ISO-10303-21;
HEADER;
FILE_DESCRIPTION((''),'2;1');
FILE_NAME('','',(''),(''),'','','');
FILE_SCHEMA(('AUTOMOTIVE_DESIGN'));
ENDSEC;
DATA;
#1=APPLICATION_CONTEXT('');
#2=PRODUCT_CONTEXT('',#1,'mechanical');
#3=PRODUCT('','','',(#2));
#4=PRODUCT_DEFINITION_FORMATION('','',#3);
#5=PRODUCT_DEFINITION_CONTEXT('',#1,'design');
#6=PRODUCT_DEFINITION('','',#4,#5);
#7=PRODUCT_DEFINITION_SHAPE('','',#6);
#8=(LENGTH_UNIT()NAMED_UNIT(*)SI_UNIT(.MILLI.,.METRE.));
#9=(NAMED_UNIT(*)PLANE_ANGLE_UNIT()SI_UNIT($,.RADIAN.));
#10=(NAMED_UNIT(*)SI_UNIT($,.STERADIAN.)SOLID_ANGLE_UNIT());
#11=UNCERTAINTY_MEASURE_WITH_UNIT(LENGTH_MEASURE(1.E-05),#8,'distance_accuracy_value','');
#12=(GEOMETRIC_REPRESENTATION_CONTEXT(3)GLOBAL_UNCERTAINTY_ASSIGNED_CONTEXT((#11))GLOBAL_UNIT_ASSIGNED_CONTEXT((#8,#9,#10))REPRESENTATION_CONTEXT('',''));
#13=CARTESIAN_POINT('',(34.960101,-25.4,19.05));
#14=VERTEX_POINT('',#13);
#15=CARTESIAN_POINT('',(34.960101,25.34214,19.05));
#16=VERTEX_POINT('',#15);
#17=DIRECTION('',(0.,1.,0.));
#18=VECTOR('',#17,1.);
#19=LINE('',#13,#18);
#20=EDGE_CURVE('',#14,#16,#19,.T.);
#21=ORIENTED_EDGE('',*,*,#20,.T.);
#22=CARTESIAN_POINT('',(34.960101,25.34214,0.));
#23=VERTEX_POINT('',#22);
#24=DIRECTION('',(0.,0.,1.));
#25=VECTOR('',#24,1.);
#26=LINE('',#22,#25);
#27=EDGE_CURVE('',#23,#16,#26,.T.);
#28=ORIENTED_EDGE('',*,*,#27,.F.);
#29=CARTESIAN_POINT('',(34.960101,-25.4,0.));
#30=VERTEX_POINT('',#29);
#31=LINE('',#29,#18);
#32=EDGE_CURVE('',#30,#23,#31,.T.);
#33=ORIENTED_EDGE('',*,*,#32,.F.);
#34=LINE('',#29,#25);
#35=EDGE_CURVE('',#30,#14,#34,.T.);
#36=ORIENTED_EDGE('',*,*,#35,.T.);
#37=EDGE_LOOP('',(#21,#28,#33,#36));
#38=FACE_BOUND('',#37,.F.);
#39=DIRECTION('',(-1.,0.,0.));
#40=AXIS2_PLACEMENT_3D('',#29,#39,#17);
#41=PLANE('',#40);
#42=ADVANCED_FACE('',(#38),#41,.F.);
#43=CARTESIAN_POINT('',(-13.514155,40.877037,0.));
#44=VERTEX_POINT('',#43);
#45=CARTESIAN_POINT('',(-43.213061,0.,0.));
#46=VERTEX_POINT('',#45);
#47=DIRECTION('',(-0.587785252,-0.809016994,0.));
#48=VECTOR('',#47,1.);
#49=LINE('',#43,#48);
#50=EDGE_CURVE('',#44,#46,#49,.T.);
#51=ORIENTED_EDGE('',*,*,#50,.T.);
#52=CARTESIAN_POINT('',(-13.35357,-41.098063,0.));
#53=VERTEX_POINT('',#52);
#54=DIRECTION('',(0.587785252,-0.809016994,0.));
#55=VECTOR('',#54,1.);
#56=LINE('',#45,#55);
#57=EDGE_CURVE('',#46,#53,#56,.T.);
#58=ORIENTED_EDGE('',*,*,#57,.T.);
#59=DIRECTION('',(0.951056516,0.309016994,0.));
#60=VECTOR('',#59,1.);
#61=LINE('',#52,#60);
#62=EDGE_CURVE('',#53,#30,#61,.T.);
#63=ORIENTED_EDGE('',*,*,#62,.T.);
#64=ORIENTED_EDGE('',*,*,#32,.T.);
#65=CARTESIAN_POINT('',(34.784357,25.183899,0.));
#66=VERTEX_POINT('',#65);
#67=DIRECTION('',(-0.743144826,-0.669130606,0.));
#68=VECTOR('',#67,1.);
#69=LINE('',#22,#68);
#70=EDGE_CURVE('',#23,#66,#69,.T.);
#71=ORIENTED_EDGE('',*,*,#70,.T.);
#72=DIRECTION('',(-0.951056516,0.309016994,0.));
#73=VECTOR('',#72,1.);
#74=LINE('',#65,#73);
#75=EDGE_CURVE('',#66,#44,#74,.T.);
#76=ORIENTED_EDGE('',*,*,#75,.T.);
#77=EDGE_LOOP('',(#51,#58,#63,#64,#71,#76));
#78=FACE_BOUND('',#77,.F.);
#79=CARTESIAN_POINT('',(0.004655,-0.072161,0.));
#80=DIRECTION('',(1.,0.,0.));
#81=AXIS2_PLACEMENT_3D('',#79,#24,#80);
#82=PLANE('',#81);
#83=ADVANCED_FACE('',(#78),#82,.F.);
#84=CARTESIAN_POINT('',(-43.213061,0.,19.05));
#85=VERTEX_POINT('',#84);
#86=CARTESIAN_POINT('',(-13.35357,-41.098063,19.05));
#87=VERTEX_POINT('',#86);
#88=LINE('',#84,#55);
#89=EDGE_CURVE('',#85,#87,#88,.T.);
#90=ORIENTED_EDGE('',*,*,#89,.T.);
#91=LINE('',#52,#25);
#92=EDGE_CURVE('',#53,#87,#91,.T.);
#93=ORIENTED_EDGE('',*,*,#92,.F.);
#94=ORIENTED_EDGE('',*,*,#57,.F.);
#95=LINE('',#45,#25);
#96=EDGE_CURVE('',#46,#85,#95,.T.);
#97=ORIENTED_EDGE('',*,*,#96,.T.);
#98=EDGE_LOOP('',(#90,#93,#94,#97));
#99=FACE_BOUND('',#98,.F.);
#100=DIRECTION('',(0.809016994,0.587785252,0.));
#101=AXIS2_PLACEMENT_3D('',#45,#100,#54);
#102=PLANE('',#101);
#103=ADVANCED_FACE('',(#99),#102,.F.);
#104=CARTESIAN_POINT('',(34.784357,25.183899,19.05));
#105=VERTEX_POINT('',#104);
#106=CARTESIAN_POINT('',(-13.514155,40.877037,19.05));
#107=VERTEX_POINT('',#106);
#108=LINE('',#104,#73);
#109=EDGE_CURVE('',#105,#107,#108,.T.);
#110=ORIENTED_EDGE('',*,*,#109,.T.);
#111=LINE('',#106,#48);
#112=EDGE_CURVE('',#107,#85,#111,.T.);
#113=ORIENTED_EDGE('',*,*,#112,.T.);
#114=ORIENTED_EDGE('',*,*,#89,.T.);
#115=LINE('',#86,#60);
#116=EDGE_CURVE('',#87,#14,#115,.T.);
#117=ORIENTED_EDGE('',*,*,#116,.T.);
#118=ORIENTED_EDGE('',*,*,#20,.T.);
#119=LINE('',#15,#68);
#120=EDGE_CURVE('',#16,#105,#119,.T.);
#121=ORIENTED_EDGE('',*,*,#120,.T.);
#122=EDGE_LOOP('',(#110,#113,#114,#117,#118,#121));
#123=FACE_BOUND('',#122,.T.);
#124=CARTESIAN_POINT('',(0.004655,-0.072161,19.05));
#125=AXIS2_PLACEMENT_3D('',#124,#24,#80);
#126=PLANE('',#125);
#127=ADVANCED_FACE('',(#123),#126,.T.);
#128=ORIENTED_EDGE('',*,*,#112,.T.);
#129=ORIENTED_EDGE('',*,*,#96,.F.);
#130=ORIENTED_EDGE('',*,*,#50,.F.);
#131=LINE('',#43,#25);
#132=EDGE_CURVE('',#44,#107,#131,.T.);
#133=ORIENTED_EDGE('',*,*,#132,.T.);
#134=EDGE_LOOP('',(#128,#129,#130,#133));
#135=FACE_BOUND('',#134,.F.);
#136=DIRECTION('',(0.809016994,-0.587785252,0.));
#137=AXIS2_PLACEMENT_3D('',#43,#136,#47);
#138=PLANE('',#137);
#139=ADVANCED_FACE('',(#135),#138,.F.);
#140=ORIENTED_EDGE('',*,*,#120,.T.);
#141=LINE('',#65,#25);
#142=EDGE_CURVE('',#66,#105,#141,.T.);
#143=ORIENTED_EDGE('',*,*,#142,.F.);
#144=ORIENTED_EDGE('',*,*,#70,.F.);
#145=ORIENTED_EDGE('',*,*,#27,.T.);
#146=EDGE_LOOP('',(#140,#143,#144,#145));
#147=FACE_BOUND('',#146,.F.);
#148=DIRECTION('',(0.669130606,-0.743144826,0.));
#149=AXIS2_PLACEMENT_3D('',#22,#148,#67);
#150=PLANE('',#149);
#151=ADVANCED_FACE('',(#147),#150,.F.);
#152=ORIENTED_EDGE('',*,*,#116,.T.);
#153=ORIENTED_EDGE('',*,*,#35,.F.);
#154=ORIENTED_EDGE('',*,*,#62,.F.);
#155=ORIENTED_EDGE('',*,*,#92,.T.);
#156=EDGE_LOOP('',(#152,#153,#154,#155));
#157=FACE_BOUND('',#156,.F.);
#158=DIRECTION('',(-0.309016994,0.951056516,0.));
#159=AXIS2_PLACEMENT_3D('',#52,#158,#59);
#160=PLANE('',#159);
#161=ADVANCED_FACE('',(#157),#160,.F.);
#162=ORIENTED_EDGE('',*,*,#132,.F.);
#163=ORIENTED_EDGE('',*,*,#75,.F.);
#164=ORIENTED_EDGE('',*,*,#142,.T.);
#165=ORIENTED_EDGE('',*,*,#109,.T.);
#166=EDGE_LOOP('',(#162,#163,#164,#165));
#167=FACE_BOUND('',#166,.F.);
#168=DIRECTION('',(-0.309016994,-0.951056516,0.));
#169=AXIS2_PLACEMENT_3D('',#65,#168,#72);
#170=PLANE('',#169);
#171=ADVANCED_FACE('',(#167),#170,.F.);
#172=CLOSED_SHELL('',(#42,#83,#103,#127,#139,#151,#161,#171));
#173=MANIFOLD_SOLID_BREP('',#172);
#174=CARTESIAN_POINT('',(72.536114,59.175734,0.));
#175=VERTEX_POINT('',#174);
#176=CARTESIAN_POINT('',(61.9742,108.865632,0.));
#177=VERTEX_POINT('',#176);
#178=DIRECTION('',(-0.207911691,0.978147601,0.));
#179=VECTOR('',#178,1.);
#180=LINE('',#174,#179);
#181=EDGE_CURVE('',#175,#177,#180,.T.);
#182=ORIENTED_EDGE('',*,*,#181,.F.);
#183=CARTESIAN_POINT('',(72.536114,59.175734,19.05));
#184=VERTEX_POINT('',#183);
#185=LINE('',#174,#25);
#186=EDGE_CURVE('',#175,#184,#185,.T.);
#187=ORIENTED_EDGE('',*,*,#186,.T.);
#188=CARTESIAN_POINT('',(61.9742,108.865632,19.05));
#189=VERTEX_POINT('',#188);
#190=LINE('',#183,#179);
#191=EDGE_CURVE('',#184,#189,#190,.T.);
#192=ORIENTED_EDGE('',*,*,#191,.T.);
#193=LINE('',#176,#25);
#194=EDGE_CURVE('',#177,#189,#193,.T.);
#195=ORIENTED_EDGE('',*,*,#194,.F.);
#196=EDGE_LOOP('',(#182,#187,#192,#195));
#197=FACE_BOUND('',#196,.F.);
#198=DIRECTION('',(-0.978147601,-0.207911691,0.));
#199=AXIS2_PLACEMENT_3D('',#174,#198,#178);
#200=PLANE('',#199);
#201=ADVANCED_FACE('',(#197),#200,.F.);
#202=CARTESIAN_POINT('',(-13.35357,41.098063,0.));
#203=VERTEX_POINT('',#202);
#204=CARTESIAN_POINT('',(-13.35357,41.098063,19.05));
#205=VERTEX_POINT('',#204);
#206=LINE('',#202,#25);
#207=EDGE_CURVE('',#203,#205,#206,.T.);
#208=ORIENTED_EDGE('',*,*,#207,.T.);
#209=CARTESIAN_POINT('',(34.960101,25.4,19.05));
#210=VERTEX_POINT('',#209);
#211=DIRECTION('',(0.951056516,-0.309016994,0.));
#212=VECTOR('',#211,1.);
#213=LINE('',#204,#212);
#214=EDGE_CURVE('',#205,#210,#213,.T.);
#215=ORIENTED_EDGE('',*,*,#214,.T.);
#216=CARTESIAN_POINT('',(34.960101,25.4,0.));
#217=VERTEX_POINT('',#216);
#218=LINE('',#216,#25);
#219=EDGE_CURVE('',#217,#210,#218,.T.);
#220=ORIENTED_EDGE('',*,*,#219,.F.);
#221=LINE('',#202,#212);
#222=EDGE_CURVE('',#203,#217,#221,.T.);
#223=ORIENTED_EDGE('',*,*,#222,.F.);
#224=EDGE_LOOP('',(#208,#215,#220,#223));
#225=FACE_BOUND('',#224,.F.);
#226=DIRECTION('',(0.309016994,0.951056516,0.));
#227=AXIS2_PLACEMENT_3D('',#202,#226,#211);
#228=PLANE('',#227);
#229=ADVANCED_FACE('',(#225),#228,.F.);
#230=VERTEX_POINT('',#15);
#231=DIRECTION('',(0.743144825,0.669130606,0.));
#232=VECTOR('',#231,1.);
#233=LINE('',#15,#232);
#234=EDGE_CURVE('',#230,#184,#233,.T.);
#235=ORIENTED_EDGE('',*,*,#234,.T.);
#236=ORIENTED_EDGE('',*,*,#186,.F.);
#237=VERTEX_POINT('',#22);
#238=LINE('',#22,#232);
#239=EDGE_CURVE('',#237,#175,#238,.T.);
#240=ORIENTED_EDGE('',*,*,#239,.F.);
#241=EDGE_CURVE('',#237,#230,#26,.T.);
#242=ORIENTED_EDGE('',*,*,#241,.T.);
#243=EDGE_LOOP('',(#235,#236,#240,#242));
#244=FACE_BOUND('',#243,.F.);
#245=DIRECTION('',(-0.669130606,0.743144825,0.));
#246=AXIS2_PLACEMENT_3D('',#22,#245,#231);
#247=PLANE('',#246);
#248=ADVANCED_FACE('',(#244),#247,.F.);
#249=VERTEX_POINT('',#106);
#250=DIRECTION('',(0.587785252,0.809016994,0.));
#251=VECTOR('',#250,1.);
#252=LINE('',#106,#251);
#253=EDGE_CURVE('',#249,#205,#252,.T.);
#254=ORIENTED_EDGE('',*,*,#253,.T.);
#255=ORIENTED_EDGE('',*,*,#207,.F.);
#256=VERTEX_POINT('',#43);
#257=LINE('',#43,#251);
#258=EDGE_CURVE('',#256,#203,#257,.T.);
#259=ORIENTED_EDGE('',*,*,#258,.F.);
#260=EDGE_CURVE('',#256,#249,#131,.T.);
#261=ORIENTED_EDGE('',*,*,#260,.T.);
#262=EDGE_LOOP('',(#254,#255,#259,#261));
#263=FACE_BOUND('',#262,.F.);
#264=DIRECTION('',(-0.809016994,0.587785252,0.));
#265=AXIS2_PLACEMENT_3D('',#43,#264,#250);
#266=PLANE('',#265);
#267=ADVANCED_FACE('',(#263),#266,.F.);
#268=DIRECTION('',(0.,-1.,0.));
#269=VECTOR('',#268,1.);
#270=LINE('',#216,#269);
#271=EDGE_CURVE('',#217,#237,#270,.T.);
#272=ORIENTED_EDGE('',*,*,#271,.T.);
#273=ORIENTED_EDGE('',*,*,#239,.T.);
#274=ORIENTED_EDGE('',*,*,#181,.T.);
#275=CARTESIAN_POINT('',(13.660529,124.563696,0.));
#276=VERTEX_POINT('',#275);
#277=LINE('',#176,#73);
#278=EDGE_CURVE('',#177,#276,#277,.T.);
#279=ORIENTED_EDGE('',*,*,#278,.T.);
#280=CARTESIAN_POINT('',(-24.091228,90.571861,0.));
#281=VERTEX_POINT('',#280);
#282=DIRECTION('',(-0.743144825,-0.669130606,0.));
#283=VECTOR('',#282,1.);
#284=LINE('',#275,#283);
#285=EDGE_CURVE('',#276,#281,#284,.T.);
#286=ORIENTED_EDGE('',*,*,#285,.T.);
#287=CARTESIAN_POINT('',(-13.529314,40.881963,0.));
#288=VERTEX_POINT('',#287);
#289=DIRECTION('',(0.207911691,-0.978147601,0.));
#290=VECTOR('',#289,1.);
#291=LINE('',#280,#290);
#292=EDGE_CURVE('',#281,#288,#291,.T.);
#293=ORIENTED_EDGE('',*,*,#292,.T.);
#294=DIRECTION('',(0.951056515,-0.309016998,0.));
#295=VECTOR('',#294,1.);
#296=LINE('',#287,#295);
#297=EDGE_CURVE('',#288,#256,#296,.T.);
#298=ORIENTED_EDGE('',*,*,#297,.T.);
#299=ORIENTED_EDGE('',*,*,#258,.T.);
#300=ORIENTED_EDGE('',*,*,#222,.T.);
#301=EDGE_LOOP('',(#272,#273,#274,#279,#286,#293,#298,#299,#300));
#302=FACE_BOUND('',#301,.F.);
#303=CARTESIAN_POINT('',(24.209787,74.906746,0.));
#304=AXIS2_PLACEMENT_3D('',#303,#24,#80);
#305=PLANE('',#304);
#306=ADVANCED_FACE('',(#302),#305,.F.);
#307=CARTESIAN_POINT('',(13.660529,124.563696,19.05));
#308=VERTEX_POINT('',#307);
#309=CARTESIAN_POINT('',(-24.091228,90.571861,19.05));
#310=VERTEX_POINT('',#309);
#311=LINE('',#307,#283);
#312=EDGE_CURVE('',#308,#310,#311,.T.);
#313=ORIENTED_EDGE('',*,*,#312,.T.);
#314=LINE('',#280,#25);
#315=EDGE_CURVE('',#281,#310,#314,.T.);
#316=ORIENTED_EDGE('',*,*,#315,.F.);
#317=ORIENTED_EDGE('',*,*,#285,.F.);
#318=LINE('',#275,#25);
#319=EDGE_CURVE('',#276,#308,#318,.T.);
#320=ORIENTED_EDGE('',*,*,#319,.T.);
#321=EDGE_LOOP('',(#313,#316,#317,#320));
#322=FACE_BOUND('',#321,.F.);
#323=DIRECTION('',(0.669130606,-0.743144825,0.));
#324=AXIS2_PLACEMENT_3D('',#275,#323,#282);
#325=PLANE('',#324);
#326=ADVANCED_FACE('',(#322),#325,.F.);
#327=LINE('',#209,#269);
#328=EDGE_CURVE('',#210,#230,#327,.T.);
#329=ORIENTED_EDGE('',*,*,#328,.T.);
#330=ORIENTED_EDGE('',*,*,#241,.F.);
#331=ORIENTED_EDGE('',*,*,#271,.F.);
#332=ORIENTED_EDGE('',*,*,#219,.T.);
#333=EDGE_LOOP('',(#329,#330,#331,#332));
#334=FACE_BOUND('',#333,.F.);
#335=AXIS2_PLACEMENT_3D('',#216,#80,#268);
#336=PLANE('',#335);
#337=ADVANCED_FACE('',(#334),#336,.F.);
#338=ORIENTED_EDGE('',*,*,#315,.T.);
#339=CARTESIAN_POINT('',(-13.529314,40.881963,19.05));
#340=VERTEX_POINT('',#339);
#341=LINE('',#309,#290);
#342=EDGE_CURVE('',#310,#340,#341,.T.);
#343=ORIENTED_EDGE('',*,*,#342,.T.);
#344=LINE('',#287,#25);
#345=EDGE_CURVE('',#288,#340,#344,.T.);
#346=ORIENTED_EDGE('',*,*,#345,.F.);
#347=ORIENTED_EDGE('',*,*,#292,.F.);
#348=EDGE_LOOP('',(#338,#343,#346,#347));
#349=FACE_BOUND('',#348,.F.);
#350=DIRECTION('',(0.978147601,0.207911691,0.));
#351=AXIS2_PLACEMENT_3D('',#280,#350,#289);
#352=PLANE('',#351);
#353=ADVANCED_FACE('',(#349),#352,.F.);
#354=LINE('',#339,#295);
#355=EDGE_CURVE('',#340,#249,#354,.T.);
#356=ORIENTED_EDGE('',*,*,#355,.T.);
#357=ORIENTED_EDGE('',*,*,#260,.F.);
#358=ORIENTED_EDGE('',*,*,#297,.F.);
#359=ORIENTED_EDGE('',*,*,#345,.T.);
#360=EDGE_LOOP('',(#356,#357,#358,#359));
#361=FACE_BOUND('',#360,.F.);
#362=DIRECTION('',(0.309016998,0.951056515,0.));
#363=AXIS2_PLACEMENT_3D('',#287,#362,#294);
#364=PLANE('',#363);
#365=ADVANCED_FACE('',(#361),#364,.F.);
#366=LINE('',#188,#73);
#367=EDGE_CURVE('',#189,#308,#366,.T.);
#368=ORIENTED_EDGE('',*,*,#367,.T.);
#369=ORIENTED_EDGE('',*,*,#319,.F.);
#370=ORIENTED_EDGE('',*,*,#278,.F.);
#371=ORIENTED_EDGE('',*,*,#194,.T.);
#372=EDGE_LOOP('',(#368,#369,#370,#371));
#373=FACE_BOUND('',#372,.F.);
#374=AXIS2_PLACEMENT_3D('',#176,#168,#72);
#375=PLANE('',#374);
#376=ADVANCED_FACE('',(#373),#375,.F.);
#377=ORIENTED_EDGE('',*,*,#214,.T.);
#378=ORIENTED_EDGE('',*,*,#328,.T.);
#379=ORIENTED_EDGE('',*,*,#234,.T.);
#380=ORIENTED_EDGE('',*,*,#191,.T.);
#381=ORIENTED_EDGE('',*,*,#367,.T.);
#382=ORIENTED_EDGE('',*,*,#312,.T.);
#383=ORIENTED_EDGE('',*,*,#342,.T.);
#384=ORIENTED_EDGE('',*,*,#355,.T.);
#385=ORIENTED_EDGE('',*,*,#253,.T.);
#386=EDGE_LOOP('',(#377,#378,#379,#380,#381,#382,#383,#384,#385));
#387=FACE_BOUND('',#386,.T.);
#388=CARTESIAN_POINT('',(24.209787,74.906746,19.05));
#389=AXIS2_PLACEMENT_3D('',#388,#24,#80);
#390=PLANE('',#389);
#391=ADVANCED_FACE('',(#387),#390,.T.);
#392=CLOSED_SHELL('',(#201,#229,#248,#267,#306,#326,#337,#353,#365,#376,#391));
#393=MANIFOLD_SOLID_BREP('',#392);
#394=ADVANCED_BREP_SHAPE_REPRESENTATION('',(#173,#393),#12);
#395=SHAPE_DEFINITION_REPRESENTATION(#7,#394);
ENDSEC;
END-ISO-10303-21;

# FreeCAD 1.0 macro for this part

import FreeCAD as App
import Part
import Sketcher
from FreeCAD import Vector
Q = App.Units.Quantity


def add_polygon(sketch, points):
    """Adds a closed chain of lines whose ends are joined by coincident constraints."""
    first, n = sketch.GeometryCount, len(points)
    for a, b in zip(points, points[1:] + points[:1]):
        sketch.addGeometry(Part.LineSegment(App.Vector(*a, 0), App.Vector(*b, 0)), False)
    for i in range(n):
        sketch.addConstraint(Sketcher.Constraint("Coincident", first + i, 2, first + (i + 1) % n, 1))

doc = App.newDocument("Part")
body = doc.addObject("PartDesign::Body", "Body")

# Sketch on XY plane
sketch1 = body.newObject("Sketcher::SketchObject", "Sketch")
sketch1.AttachmentSupport = (doc.getObject("XY_Plane"), [""])
sketch1.MapMode = "FlatFace"
add_polygon(sketch1, [(34.96, -25.4), (34.96, 25.34), (34.78, 25.18), (-13.51, 40.88), (-43.21, 0), (-13.35, -41.1)])  # lines 0-5
sketch1.addConstraint([
    Sketcher.Constraint("Vertical", 0),
    Sketcher.Constraint("PointOnObject", 3, 2, -1),
    Sketcher.Constraint("Equal", 4, 5),
    Sketcher.Constraint("Distance", 4, Q("2 in")),
    Sketcher.Constraint("DistanceY", 5, 2, -1, 1, Q("1 in")),
    Sketcher.Constraint("Angle", 1, Q("-138 deg")),
    Sketcher.Constraint("Angle", 2, Q("162 deg")),
    Sketcher.Constraint("Angle", 3, Q("-126 deg")),
    Sketcher.Constraint("Angle", 4, Q("-54 deg")),
    Sketcher.Constraint("DistanceY", 0, 1, 0, 2, Q("50.74214 mm")),
    Sketcher.Constraint("DistanceX", -1, 1, 0, 2, Q("34.960101 mm")),
    Sketcher.Constraint("DistanceY", -1, 1, 1, 2, Q("25.183899 mm")),
])
pad1 = body.newObject("PartDesign::Pad", "Pad")
pad1.Profile = sketch1
pad1.Length = Q("0.75 in")

# Sketch on XY plane
sketch2 = body.newObject("Sketcher::SketchObject", "Sketch001")
sketch2.AttachmentSupport = (doc.getObject("XY_Plane"), [""])
sketch2.MapMode = "FlatFace"
add_polygon(sketch2, [(31, 22), (-12, 36), (-38, 0), (-12, -36), (31, -22)])  # lines 0-4
sketch2.addConstraint([
    Sketcher.Constraint("Vertical", 4),
    Sketcher.Constraint("Symmetric", 0, 2, 2, 2, -1),
    Sketcher.Constraint("PointOnObject", 1, 2, -1),
    Sketcher.Constraint("Equal", 0, 1),
    Sketcher.Constraint("Equal", 2, 3),
    Sketcher.Constraint("Angle", 0, Q("162 deg")),
    Sketcher.Constraint("Angle", 1, Q("-126 deg")),
    Sketcher.Constraint("DistanceX", 1, 2, -1, 1, Q("1.5 in")),
    Sketcher.Constraint("DistanceY", 4, 1, 4, 2, Q("44.789236 mm")),
])
pad2 = body.newObject("PartDesign::Pad", "Pad001")
pad2.Profile = sketch2
pad2.Length = Q("0.25 in")
body2 = doc.addObject("PartDesign::Body", "Body001")

# Sketch on XY plane
sketch3 = body2.newObject("Sketcher::SketchObject", "Sketch002")
sketch3.AttachmentSupport = (doc.getObject("XY_Plane001"), [""])
sketch3.MapMode = "FlatFace"
add_polygon(sketch3, [(-13.354, 41.098), (34.96, 25.4), (34.96, 25.342), (72.536, 59.176), (61.974, 108.866), (13.661, 124.564), (-24.091, 90.572), (-13.529, 40.882), (-13.514, 40.877)])  # lines 0-8
sketch3.addConstraint([
    Sketcher.Constraint("Vertical", 1),
    Sketcher.Constraint("Parallel", 0, 4),
    Sketcher.Constraint("Parallel", 2, 5),
    Sketcher.Constraint("Parallel", 3, 6),
    Sketcher.Constraint("Parallel", 4, 7),
    Sketcher.Constraint("Equal", 0, 3),
    Sketcher.Constraint("Equal", 3, 4),
    Sketcher.Constraint("Equal", 4, 5),
    Sketcher.Constraint("Equal", 5, 6),
    Sketcher.Constraint("Distance", 0, Q("2 in")),
    Sketcher.Constraint("DistanceY", -1, 1, 0, 2, Q("1 in")),
    Sketcher.Constraint("Angle", 0, Q("-18 deg")),
    Sketcher.Constraint("Angle", 2, Q("42 deg")),
    Sketcher.Constraint("Angle", 3, Q("102 deg")),
    Sketcher.Constraint("Angle", 8, Q("54 deg")),
    Sketcher.Constraint("DistanceY", 1, 2, 1, 1, Q("0.05786 mm")),
    Sketcher.Constraint("DistanceX", -1, 1, 0, 2, Q("34.960101 mm")),
    Sketcher.Constraint("DistanceX", -1, 1, 3, 2, Q("61.9742 mm")),
])
pad3 = body2.newObject("PartDesign::Pad", "Pad002")
pad3.Profile = sketch3
pad3.Length = Q("0.75 in")

# Sketch on XY plane
sketch4 = body2.newObject("Sketcher::SketchObject", "Sketch003")
sketch4.AttachmentSupport = (doc.getObject("XY_Plane001"), [""])
sketch4.MapMode = "FlatFace"
add_polygon(sketch4, [(66, 61), (57, 103), (15, 117), (-17, 88), (-8, 45), (33, 32)])  # lines 0-5
sketch4.addConstraint([
    Sketcher.Constraint("Parallel", 0, 3),
    Sketcher.Constraint("Parallel", 1, 4),
    Sketcher.Constraint("Parallel", 2, 5),
    Sketcher.Constraint("Equal", 0, 1),
    Sketcher.Constraint("Equal", 1, 2),
    Sketcher.Constraint("Equal", 2, 3),
    Sketcher.Constraint("Angle", 0, Q("102 deg")),
    Sketcher.Constraint("Angle", 1, Q("162 deg")),
    Sketcher.Constraint("Angle", 2, Q("-138 deg")),
    Sketcher.Constraint("DistanceY", -1, 1, 4, 2, Q("1.2402 in")),
    Sketcher.Constraint("DistanceY", -1, 1, 5, 2, Q("60.72915 mm")),
    Sketcher.Constraint("DistanceX", -1, 1, 0, 2, Q("56.774335 mm")),
])
pad4 = body2.newObject("PartDesign::Pad", "Pad003")
pad4.Profile = sketch4
pad4.Length = Q("0.25 in")

doc.recompute()
